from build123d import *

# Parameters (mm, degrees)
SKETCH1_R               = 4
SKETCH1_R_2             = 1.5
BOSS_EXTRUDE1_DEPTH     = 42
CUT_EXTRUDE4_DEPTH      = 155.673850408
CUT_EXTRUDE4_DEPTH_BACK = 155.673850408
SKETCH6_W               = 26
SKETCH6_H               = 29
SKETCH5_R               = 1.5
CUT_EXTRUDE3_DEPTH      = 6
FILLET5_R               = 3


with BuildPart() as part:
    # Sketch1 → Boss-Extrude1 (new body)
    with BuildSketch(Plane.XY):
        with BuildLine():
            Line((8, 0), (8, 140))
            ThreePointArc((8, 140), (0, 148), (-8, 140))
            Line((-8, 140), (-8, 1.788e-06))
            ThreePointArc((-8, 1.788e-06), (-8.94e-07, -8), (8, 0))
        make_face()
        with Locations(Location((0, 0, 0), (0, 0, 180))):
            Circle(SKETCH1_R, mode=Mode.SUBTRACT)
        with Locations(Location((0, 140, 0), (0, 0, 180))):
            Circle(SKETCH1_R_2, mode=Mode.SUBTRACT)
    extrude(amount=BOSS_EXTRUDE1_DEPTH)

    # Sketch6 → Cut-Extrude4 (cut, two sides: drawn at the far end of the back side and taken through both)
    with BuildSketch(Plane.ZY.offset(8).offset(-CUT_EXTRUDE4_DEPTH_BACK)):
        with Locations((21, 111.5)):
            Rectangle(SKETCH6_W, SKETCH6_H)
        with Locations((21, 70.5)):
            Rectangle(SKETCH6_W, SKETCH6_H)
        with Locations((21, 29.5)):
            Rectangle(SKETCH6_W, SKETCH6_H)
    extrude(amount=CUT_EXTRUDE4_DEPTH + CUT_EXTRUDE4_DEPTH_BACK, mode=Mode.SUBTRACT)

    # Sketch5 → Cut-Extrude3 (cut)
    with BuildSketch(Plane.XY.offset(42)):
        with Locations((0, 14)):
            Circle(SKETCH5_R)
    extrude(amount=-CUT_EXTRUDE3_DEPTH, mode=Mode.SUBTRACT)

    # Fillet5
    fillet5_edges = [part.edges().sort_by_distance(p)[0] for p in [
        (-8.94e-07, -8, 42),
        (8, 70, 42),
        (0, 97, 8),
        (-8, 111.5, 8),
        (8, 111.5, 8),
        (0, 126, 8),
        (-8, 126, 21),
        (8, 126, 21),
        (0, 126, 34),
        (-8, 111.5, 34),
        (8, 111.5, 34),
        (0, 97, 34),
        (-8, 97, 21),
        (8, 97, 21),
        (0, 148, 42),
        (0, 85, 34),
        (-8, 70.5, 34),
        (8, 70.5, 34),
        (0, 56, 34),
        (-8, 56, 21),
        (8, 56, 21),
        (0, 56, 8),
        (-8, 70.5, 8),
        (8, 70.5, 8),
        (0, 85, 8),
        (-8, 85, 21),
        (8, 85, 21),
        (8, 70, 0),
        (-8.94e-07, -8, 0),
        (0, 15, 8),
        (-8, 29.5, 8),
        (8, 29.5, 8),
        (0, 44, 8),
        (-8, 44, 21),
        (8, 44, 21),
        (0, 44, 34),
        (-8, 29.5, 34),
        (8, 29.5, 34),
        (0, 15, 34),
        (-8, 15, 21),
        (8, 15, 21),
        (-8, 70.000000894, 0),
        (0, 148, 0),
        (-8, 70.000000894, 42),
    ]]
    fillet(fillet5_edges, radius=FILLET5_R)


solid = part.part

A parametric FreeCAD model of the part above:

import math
import FreeCAD as App
import Part
import Sketcher
from FreeCAD import Vector


def edges_at(feature, points):
    """Names of the edges that pass closest to the given points."""
    edges = feature.Shape.Edges
    near = lambda p: min(range(len(edges)), key=lambda i: edges[i].distToShape(Part.Vertex(*p))[0])
    return sorted({f"Edge{near(p) + 1}" for p in points})


def add_polygon(sketch, points):
    """Adds a closed chain of lines whose ends are joined by coincident constraints."""
    first, n = sketch.GeometryCount, len(points)
    for a, b in zip(points, points[1:] + points[:1]):
        sketch.addGeometry(Part.LineSegment(App.Vector(*a, 0), App.Vector(*b, 0)), False)
    for i in range(n):
        sketch.addConstraint(Sketcher.Constraint("Coincident", first + i, 2, first + (i + 1) % n, 1))

doc = App.newDocument("Part")
body = doc.addObject("PartDesign::Body", "Body")

# Sketch on XY plane
sketch1 = body.newObject("Sketcher::SketchObject", "Sketch")
sketch1.AttachmentSupport = (doc.getObject("XY_Plane"), [""])
sketch1.MapMode = "FlatFace"
sketch1.addGeometry([
    Part.LineSegment(Vector(8, 0, 0), Vector(8, 140, 0)),  # 0
    Part.ArcOfCircle(Part.Circle(Vector(0, 140, 0), Vector(0, 0, 1), 8), math.radians(0), math.radians(180)),  # 1
    Part.LineSegment(Vector(-8, 140, 0), Vector(-8, 0, 0)),  # 2
    Part.ArcOfCircle(Part.Circle(Vector(0, 0, 0), Vector(0, 0, 1), 8), math.radians(180), math.radians(360)),  # 3
    Part.Circle(Vector(0, 0, 0), Vector(0, 0, 1), 4),  # 4
    Part.Circle(Vector(0, 140, 0), Vector(0, 0, 1), 1.5),  # 5
], False)
sketch1.addConstraint([
    Sketcher.Constraint("Tangent", 0, 2, 1, 1),
    Sketcher.Constraint("Tangent", 1, 2, 2, 1),
    Sketcher.Constraint("Tangent", 2, 2, 3, 1),
    Sketcher.Constraint("Tangent", 3, 2, 0, 1),
    Sketcher.Constraint("Vertical", 0),
    Sketcher.Constraint("Vertical", 2),
    Sketcher.Constraint("Coincident", 3, 3, -1, 1),
    Sketcher.Constraint("Coincident", 4, 3, -1, 1),
    Sketcher.Constraint("Coincident", 5, 3, 1, 3),
    Sketcher.Constraint("Diameter", 4, 8.0),
    Sketcher.Constraint("Diameter", 5, 3.0),
    Sketcher.Constraint("Radius", 1, 8.0),
    Sketcher.Constraint("DistanceY", 0, 1, 0, 2, 140.0),
])
pad1 = body.newObject("PartDesign::Pad", "Pad")
pad1.Profile = sketch1
pad1.Length = 42

# Sketch on YZ plane
sketch2 = body.newObject("Sketcher::SketchObject", "Sketch001")
sketch2.AttachmentSupport = (doc.getObject("YZ_Plane"), [""])
sketch2.MapMode = "FlatFace"
sketch2.AttachmentOffset = App.Placement(Vector(0, 0, -8), App.Rotation())
add_polygon(sketch2, [(126, 8), (97, 8), (97, 34), (126, 34)])  # lines 0-3
add_polygon(sketch2, [(85, 8), (56, 8), (56, 34), (85, 34)])  # lines 4-7
add_polygon(sketch2, [(44, 8), (15, 8), (15, 34), (44, 34)])  # lines 8-11
sketch2.addConstraint([
    Sketcher.Constraint("Horizontal", 0),
    Sketcher.Constraint("Vertical", 1),
    Sketcher.Constraint("Horizontal", 2),
    Sketcher.Constraint("Vertical", 3),
    Sketcher.Constraint("Horizontal", 4),
    Sketcher.Constraint("Vertical", 5),
    Sketcher.Constraint("Horizontal", 6),
    Sketcher.Constraint("Vertical", 7),
    Sketcher.Constraint("Horizontal", 8),
    Sketcher.Constraint("Vertical", 9),
    Sketcher.Constraint("Horizontal", 10),
    Sketcher.Constraint("Vertical", 11),
    Sketcher.Constraint("Horizontal", 3, 2, 4, 2),
    Sketcher.Constraint("Horizontal", 2, 2, 5, 2),
    Sketcher.Constraint("Horizontal", 7, 2, 8, 2),
    Sketcher.Constraint("Horizontal", 6, 2, 9, 2),
    Sketcher.Constraint("Equal", 2, 4),
    Sketcher.Constraint("Equal", 6, 8),
    Sketcher.Constraint("DistanceX", 0, 2, 0, 1, 29.0),
    Sketcher.Constraint("DistanceY", 1, 1, 1, 2, 26.0),
    Sketcher.Constraint("DistanceX", -1, 1, 0, 2, 97.0),
    Sketcher.Constraint("DistanceY", -1, 1, 0, 2, 8.0),
    Sketcher.Constraint("DistanceX", -1, 1, 4, 2, 56.0),
    Sketcher.Constraint("DistanceX", -1, 1, 8, 2, 15.0),
])
pocket1 = body.newObject("PartDesign::Pocket", "Pocket")
pocket1.Profile = sketch2
pocket1.Type = "ThroughAll"
pocket1.Midplane = True

# Sketch on XY plane
sketch3 = body.newObject("Sketcher::SketchObject", "Sketch002")
sketch3.AttachmentSupport = (doc.getObject("XY_Plane"), [""])
sketch3.MapMode = "FlatFace"
sketch3.AttachmentOffset = App.Placement(Vector(0, 0, 42), App.Rotation())
sketch3.addGeometry(Part.Circle(Vector(0, 14, 0), Vector(0, 0, 1), 1.5), False)
sketch3.addConstraint([
    Sketcher.Constraint("PointOnObject", 0, 3, -2),
    Sketcher.Constraint("Diameter", 0, 3.0),
    Sketcher.Constraint("DistanceY", -1, 1, 0, 3, 14.0),
])
pocket2 = body.newObject("PartDesign::Pocket", "Pocket001")
pocket2.Profile = sketch3
pocket2.Length = 6
doc.recompute()

fillet = body.newObject("PartDesign::Fillet", "Fillet")
fillet.Base = (pocket2, edges_at(pocket2, [
    (0, -8, 42),
    (8, 70, 42),
    (0, 97, 8),
    (-8, 111.5, 8),
    (8, 111.5, 8),
    (0, 126, 8),
    (-8, 126, 21),
    (8, 126, 21),
    (0, 126, 34),
    (-8, 111.5, 34),
    (8, 111.5, 34),
    (0, 97, 34),
    (-8, 97, 21),
    (8, 97, 21),
    (0, 148, 42),
    (0, 85, 34),
    (-8, 70.5, 34),
    (8, 70.5, 34),
    (0, 56, 34),
    (-8, 56, 21),
    (8, 56, 21),
    (0, 56, 8),
    (-8, 70.5, 8),
    (8, 70.5, 8),
    (0, 85, 8),
    (-8, 85, 21),
    (8, 85, 21),
    (8, 70, 0),
    (0, -8, 0),
    (0, 15, 8),
    (-8, 29.5, 8),
    (8, 29.5, 8),
    (0, 44, 8),
    (-8, 44, 21),
    (8, 44, 21),
    (0, 44, 34),
    (-8, 29.5, 34),
    (8, 29.5, 34),
    (0, 15, 34),
    (-8, 15, 21),
    (8, 15, 21),
    (-8, 70, 0),
    (0, 148, 0),
    (-8, 70, 42),
]))
fillet.Radius = 3

doc.recompute()
